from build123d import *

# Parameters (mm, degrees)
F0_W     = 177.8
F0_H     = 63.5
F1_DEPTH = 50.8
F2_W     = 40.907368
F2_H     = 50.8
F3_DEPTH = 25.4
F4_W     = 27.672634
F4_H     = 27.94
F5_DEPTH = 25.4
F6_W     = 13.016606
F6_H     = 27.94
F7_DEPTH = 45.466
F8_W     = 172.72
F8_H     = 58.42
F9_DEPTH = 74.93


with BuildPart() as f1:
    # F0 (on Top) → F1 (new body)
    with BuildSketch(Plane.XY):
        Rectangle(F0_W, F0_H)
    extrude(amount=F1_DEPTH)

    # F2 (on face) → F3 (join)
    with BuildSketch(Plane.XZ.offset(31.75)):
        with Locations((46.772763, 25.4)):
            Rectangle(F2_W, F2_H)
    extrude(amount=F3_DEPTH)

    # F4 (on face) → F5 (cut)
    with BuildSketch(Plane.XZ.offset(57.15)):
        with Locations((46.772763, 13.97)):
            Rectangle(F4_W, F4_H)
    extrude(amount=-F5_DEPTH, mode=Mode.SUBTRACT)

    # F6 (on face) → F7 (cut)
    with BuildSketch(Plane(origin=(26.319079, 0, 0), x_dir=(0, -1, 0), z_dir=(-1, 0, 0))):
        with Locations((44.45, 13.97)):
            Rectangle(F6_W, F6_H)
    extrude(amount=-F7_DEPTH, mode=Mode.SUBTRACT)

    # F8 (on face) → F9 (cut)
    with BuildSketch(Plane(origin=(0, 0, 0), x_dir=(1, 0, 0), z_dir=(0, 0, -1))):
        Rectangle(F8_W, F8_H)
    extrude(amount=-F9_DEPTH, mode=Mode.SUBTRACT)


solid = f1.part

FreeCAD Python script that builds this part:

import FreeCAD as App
import Part
import Sketcher
from FreeCAD import Vector
Q = App.Units.Quantity


def add_polygon(sketch, points):
    """Adds a closed chain of lines whose ends are joined by coincident constraints."""
    first, n = sketch.GeometryCount, len(points)
    for a, b in zip(points, points[1:] + points[:1]):
        sketch.addGeometry(Part.LineSegment(App.Vector(*a, 0), App.Vector(*b, 0)), False)
    for i in range(n):
        sketch.addConstraint(Sketcher.Constraint("Coincident", first + i, 2, first + (i + 1) % n, 1))

doc = App.newDocument("Part")
body = doc.addObject("PartDesign::Body", "Body")

# Sketch on XY plane
sketch1 = doc.addObject("Sketcher::SketchObject", "Sketch")
body.addObject(sketch1)
sketch1.AttachmentSupport = (doc.XY_Plane, [""])
sketch1.MapMode = "FlatFace"
add_polygon(sketch1, [(-88.9, 31.75), (-88.9, -31.75), (88.9, -31.75), (88.9, 31.75)])  # lines 0-3
sketch1.addConstraint(Sketcher.Constraint("Vertical", 0))
sketch1.addConstraint(Sketcher.Constraint("Horizontal", 1))
sketch1.addConstraint(Sketcher.Constraint("Vertical", 2))
sketch1.addConstraint(Sketcher.Constraint("Horizontal", 3))
sketch1.addConstraint(Sketcher.Constraint("Symmetric", 0, 2, 2, 2, -1, 1))
sketch1.addConstraint(Sketcher.Constraint("DistanceX", 1, 1, 1, 2, Q("7 in")))
sketch1.addConstraint(Sketcher.Constraint("DistanceY", 0, 2, 0, 1, Q("2.5 in")))
pad1 = doc.addObject("PartDesign::Pad", "Pad")
body.addObject(pad1)
pad1.Profile = sketch1
pad1.Length = Q("2 in")

# Sketch on XZ plane
sketch2 = doc.addObject("Sketcher::SketchObject", "Sketch001")
body.addObject(sketch2)
sketch2.AttachmentSupport = (doc.XZ_Plane, [""])
sketch2.MapMode = "FlatFace"
sketch2.AttachmentOffset = App.Placement(Vector(0, 0, 1.25 * 25.4), App.Rotation())
add_polygon(sketch2, [(26.319079, 50.8), (26.319079, 0), (67.226447, 0), (67.226447, 50.8)])  # lines 0-3
sketch2.addConstraint(Sketcher.Constraint("Vertical", 0))
sketch2.addConstraint(Sketcher.Constraint("Horizontal", 1))
sketch2.addConstraint(Sketcher.Constraint("Vertical", 2))
sketch2.addConstraint(Sketcher.Constraint("Horizontal", 3))
sketch2.addConstraint(Sketcher.Constraint("PointOnObject", 0, 2, -1))
sketch2.addConstraint(Sketcher.Constraint("DistanceY", 0, 2, 0, 1, Q("2 in")))
sketch2.addConstraint(Sketcher.Constraint("DistanceX", 1, 1, 1, 2, Q("40.907368 mm")))
sketch2.addConstraint(Sketcher.Constraint("DistanceX", -1, 1, 0, 2, Q("26.319079 mm")))
pad2 = doc.addObject("PartDesign::Pad", "Pad001")
body.addObject(pad2)
pad2.Profile = sketch2
pad2.Length = Q("1 in")

# Sketch on XZ plane
sketch3 = doc.addObject("Sketcher::SketchObject", "Sketch002")
body.addObject(sketch3)
sketch3.AttachmentSupport = (doc.XZ_Plane, [""])
sketch3.MapMode = "FlatFace"
sketch3.AttachmentOffset = App.Placement(Vector(0, 0, 2.25 * 25.4), App.Rotation())
add_polygon(sketch3, [(32.936446, 27.94), (32.936446, 0), (60.60908, 0), (60.60908, 27.94)])  # lines 0-3
sketch3.addConstraint(Sketcher.Constraint("Vertical", 0))
sketch3.addConstraint(Sketcher.Constraint("Horizontal", 1))
sketch3.addConstraint(Sketcher.Constraint("Vertical", 2))
sketch3.addConstraint(Sketcher.Constraint("Horizontal", 3))
sketch3.addConstraint(Sketcher.Constraint("PointOnObject", 0, 2, -1))
sketch3.addConstraint(Sketcher.Constraint("DistanceY", 0, 2, 0, 1, Q("1.1 in")))
sketch3.addConstraint(Sketcher.Constraint("DistanceX", 1, 1, 1, 2, Q("27.672634 mm")))
sketch3.addConstraint(Sketcher.Constraint("DistanceX", -1, 1, 1, 2, Q("60.60908 mm")))
pocket1 = doc.addObject("PartDesign::Pocket", "Pocket")
body.addObject(pocket1)
pocket1.Profile = sketch3
pocket1.Length = Q("1 in")

# Sketch on YZ plane
sketch4 = doc.addObject("Sketcher::SketchObject", "Sketch003")
body.addObject(sketch4)
sketch4.AttachmentSupport = (doc.YZ_Plane, [""])
sketch4.MapMode = "FlatFace"
sketch4.AttachmentOffset = App.Placement(Vector(0, 0, 26.319079), App.Rotation())
add_polygon(sketch4, [(-37.941697, 27.94), (-37.941697, 0), (-50.958303, 0), (-50.958303, 27.94)])  # lines 0-3
sketch4.addConstraint(Sketcher.Constraint("Vertical", 0))
sketch4.addConstraint(Sketcher.Constraint("Horizontal", 1))
sketch4.addConstraint(Sketcher.Constraint("Vertical", 2))
sketch4.addConstraint(Sketcher.Constraint("Horizontal", 3))
sketch4.addConstraint(Sketcher.Constraint("PointOnObject", 0, 2, -1))
sketch4.addConstraint(Sketcher.Constraint("DistanceY", 0, 2, 0, 1, Q("1.1 in")))
sketch4.addConstraint(Sketcher.Constraint("DistanceX", 1, 2, 1, 1, Q("13.016606 mm")))
sketch4.addConstraint(Sketcher.Constraint("DistanceX", 0, 2, -1, 1, Q("37.941697 mm")))
pocket2 = doc.addObject("PartDesign::Pocket", "Pocket001")
body.addObject(pocket2)
pocket2.Profile = sketch4
pocket2.Length = Q("1.79 in")
pocket2.Reversed = True

# Sketch on XY plane
sketch5 = doc.addObject("Sketcher::SketchObject", "Sketch004")
body.addObject(sketch5)
sketch5.AttachmentSupport = (doc.XY_Plane, [""])
sketch5.MapMode = "FlatFace"
add_polygon(sketch5, [(-86.36, -29.21), (-86.36, 29.21), (86.36, 29.21), (86.36, -29.21)])  # lines 0-3
sketch5.addConstraint(Sketcher.Constraint("Vertical", 0))
sketch5.addConstraint(Sketcher.Constraint("Horizontal", 1))
sketch5.addConstraint(Sketcher.Constraint("Vertical", 2))
sketch5.addConstraint(Sketcher.Constraint("Horizontal", 3))
sketch5.addConstraint(Sketcher.Constraint("Symmetric", 0, 2, 2, 2, -1, 1))
sketch5.addConstraint(Sketcher.Constraint("DistanceX", 1, 1, 1, 2, Q("6.8 in")))
sketch5.addConstraint(Sketcher.Constraint("DistanceY", 0, 1, 0, 2, Q("2.3 in")))
pocket3 = doc.addObject("PartDesign::Pocket", "Pocket002")
body.addObject(pocket3)
pocket3.Profile = sketch5
pocket3.Length = Q("2.95 in")
pocket3.Reversed = True

doc.recompute()
